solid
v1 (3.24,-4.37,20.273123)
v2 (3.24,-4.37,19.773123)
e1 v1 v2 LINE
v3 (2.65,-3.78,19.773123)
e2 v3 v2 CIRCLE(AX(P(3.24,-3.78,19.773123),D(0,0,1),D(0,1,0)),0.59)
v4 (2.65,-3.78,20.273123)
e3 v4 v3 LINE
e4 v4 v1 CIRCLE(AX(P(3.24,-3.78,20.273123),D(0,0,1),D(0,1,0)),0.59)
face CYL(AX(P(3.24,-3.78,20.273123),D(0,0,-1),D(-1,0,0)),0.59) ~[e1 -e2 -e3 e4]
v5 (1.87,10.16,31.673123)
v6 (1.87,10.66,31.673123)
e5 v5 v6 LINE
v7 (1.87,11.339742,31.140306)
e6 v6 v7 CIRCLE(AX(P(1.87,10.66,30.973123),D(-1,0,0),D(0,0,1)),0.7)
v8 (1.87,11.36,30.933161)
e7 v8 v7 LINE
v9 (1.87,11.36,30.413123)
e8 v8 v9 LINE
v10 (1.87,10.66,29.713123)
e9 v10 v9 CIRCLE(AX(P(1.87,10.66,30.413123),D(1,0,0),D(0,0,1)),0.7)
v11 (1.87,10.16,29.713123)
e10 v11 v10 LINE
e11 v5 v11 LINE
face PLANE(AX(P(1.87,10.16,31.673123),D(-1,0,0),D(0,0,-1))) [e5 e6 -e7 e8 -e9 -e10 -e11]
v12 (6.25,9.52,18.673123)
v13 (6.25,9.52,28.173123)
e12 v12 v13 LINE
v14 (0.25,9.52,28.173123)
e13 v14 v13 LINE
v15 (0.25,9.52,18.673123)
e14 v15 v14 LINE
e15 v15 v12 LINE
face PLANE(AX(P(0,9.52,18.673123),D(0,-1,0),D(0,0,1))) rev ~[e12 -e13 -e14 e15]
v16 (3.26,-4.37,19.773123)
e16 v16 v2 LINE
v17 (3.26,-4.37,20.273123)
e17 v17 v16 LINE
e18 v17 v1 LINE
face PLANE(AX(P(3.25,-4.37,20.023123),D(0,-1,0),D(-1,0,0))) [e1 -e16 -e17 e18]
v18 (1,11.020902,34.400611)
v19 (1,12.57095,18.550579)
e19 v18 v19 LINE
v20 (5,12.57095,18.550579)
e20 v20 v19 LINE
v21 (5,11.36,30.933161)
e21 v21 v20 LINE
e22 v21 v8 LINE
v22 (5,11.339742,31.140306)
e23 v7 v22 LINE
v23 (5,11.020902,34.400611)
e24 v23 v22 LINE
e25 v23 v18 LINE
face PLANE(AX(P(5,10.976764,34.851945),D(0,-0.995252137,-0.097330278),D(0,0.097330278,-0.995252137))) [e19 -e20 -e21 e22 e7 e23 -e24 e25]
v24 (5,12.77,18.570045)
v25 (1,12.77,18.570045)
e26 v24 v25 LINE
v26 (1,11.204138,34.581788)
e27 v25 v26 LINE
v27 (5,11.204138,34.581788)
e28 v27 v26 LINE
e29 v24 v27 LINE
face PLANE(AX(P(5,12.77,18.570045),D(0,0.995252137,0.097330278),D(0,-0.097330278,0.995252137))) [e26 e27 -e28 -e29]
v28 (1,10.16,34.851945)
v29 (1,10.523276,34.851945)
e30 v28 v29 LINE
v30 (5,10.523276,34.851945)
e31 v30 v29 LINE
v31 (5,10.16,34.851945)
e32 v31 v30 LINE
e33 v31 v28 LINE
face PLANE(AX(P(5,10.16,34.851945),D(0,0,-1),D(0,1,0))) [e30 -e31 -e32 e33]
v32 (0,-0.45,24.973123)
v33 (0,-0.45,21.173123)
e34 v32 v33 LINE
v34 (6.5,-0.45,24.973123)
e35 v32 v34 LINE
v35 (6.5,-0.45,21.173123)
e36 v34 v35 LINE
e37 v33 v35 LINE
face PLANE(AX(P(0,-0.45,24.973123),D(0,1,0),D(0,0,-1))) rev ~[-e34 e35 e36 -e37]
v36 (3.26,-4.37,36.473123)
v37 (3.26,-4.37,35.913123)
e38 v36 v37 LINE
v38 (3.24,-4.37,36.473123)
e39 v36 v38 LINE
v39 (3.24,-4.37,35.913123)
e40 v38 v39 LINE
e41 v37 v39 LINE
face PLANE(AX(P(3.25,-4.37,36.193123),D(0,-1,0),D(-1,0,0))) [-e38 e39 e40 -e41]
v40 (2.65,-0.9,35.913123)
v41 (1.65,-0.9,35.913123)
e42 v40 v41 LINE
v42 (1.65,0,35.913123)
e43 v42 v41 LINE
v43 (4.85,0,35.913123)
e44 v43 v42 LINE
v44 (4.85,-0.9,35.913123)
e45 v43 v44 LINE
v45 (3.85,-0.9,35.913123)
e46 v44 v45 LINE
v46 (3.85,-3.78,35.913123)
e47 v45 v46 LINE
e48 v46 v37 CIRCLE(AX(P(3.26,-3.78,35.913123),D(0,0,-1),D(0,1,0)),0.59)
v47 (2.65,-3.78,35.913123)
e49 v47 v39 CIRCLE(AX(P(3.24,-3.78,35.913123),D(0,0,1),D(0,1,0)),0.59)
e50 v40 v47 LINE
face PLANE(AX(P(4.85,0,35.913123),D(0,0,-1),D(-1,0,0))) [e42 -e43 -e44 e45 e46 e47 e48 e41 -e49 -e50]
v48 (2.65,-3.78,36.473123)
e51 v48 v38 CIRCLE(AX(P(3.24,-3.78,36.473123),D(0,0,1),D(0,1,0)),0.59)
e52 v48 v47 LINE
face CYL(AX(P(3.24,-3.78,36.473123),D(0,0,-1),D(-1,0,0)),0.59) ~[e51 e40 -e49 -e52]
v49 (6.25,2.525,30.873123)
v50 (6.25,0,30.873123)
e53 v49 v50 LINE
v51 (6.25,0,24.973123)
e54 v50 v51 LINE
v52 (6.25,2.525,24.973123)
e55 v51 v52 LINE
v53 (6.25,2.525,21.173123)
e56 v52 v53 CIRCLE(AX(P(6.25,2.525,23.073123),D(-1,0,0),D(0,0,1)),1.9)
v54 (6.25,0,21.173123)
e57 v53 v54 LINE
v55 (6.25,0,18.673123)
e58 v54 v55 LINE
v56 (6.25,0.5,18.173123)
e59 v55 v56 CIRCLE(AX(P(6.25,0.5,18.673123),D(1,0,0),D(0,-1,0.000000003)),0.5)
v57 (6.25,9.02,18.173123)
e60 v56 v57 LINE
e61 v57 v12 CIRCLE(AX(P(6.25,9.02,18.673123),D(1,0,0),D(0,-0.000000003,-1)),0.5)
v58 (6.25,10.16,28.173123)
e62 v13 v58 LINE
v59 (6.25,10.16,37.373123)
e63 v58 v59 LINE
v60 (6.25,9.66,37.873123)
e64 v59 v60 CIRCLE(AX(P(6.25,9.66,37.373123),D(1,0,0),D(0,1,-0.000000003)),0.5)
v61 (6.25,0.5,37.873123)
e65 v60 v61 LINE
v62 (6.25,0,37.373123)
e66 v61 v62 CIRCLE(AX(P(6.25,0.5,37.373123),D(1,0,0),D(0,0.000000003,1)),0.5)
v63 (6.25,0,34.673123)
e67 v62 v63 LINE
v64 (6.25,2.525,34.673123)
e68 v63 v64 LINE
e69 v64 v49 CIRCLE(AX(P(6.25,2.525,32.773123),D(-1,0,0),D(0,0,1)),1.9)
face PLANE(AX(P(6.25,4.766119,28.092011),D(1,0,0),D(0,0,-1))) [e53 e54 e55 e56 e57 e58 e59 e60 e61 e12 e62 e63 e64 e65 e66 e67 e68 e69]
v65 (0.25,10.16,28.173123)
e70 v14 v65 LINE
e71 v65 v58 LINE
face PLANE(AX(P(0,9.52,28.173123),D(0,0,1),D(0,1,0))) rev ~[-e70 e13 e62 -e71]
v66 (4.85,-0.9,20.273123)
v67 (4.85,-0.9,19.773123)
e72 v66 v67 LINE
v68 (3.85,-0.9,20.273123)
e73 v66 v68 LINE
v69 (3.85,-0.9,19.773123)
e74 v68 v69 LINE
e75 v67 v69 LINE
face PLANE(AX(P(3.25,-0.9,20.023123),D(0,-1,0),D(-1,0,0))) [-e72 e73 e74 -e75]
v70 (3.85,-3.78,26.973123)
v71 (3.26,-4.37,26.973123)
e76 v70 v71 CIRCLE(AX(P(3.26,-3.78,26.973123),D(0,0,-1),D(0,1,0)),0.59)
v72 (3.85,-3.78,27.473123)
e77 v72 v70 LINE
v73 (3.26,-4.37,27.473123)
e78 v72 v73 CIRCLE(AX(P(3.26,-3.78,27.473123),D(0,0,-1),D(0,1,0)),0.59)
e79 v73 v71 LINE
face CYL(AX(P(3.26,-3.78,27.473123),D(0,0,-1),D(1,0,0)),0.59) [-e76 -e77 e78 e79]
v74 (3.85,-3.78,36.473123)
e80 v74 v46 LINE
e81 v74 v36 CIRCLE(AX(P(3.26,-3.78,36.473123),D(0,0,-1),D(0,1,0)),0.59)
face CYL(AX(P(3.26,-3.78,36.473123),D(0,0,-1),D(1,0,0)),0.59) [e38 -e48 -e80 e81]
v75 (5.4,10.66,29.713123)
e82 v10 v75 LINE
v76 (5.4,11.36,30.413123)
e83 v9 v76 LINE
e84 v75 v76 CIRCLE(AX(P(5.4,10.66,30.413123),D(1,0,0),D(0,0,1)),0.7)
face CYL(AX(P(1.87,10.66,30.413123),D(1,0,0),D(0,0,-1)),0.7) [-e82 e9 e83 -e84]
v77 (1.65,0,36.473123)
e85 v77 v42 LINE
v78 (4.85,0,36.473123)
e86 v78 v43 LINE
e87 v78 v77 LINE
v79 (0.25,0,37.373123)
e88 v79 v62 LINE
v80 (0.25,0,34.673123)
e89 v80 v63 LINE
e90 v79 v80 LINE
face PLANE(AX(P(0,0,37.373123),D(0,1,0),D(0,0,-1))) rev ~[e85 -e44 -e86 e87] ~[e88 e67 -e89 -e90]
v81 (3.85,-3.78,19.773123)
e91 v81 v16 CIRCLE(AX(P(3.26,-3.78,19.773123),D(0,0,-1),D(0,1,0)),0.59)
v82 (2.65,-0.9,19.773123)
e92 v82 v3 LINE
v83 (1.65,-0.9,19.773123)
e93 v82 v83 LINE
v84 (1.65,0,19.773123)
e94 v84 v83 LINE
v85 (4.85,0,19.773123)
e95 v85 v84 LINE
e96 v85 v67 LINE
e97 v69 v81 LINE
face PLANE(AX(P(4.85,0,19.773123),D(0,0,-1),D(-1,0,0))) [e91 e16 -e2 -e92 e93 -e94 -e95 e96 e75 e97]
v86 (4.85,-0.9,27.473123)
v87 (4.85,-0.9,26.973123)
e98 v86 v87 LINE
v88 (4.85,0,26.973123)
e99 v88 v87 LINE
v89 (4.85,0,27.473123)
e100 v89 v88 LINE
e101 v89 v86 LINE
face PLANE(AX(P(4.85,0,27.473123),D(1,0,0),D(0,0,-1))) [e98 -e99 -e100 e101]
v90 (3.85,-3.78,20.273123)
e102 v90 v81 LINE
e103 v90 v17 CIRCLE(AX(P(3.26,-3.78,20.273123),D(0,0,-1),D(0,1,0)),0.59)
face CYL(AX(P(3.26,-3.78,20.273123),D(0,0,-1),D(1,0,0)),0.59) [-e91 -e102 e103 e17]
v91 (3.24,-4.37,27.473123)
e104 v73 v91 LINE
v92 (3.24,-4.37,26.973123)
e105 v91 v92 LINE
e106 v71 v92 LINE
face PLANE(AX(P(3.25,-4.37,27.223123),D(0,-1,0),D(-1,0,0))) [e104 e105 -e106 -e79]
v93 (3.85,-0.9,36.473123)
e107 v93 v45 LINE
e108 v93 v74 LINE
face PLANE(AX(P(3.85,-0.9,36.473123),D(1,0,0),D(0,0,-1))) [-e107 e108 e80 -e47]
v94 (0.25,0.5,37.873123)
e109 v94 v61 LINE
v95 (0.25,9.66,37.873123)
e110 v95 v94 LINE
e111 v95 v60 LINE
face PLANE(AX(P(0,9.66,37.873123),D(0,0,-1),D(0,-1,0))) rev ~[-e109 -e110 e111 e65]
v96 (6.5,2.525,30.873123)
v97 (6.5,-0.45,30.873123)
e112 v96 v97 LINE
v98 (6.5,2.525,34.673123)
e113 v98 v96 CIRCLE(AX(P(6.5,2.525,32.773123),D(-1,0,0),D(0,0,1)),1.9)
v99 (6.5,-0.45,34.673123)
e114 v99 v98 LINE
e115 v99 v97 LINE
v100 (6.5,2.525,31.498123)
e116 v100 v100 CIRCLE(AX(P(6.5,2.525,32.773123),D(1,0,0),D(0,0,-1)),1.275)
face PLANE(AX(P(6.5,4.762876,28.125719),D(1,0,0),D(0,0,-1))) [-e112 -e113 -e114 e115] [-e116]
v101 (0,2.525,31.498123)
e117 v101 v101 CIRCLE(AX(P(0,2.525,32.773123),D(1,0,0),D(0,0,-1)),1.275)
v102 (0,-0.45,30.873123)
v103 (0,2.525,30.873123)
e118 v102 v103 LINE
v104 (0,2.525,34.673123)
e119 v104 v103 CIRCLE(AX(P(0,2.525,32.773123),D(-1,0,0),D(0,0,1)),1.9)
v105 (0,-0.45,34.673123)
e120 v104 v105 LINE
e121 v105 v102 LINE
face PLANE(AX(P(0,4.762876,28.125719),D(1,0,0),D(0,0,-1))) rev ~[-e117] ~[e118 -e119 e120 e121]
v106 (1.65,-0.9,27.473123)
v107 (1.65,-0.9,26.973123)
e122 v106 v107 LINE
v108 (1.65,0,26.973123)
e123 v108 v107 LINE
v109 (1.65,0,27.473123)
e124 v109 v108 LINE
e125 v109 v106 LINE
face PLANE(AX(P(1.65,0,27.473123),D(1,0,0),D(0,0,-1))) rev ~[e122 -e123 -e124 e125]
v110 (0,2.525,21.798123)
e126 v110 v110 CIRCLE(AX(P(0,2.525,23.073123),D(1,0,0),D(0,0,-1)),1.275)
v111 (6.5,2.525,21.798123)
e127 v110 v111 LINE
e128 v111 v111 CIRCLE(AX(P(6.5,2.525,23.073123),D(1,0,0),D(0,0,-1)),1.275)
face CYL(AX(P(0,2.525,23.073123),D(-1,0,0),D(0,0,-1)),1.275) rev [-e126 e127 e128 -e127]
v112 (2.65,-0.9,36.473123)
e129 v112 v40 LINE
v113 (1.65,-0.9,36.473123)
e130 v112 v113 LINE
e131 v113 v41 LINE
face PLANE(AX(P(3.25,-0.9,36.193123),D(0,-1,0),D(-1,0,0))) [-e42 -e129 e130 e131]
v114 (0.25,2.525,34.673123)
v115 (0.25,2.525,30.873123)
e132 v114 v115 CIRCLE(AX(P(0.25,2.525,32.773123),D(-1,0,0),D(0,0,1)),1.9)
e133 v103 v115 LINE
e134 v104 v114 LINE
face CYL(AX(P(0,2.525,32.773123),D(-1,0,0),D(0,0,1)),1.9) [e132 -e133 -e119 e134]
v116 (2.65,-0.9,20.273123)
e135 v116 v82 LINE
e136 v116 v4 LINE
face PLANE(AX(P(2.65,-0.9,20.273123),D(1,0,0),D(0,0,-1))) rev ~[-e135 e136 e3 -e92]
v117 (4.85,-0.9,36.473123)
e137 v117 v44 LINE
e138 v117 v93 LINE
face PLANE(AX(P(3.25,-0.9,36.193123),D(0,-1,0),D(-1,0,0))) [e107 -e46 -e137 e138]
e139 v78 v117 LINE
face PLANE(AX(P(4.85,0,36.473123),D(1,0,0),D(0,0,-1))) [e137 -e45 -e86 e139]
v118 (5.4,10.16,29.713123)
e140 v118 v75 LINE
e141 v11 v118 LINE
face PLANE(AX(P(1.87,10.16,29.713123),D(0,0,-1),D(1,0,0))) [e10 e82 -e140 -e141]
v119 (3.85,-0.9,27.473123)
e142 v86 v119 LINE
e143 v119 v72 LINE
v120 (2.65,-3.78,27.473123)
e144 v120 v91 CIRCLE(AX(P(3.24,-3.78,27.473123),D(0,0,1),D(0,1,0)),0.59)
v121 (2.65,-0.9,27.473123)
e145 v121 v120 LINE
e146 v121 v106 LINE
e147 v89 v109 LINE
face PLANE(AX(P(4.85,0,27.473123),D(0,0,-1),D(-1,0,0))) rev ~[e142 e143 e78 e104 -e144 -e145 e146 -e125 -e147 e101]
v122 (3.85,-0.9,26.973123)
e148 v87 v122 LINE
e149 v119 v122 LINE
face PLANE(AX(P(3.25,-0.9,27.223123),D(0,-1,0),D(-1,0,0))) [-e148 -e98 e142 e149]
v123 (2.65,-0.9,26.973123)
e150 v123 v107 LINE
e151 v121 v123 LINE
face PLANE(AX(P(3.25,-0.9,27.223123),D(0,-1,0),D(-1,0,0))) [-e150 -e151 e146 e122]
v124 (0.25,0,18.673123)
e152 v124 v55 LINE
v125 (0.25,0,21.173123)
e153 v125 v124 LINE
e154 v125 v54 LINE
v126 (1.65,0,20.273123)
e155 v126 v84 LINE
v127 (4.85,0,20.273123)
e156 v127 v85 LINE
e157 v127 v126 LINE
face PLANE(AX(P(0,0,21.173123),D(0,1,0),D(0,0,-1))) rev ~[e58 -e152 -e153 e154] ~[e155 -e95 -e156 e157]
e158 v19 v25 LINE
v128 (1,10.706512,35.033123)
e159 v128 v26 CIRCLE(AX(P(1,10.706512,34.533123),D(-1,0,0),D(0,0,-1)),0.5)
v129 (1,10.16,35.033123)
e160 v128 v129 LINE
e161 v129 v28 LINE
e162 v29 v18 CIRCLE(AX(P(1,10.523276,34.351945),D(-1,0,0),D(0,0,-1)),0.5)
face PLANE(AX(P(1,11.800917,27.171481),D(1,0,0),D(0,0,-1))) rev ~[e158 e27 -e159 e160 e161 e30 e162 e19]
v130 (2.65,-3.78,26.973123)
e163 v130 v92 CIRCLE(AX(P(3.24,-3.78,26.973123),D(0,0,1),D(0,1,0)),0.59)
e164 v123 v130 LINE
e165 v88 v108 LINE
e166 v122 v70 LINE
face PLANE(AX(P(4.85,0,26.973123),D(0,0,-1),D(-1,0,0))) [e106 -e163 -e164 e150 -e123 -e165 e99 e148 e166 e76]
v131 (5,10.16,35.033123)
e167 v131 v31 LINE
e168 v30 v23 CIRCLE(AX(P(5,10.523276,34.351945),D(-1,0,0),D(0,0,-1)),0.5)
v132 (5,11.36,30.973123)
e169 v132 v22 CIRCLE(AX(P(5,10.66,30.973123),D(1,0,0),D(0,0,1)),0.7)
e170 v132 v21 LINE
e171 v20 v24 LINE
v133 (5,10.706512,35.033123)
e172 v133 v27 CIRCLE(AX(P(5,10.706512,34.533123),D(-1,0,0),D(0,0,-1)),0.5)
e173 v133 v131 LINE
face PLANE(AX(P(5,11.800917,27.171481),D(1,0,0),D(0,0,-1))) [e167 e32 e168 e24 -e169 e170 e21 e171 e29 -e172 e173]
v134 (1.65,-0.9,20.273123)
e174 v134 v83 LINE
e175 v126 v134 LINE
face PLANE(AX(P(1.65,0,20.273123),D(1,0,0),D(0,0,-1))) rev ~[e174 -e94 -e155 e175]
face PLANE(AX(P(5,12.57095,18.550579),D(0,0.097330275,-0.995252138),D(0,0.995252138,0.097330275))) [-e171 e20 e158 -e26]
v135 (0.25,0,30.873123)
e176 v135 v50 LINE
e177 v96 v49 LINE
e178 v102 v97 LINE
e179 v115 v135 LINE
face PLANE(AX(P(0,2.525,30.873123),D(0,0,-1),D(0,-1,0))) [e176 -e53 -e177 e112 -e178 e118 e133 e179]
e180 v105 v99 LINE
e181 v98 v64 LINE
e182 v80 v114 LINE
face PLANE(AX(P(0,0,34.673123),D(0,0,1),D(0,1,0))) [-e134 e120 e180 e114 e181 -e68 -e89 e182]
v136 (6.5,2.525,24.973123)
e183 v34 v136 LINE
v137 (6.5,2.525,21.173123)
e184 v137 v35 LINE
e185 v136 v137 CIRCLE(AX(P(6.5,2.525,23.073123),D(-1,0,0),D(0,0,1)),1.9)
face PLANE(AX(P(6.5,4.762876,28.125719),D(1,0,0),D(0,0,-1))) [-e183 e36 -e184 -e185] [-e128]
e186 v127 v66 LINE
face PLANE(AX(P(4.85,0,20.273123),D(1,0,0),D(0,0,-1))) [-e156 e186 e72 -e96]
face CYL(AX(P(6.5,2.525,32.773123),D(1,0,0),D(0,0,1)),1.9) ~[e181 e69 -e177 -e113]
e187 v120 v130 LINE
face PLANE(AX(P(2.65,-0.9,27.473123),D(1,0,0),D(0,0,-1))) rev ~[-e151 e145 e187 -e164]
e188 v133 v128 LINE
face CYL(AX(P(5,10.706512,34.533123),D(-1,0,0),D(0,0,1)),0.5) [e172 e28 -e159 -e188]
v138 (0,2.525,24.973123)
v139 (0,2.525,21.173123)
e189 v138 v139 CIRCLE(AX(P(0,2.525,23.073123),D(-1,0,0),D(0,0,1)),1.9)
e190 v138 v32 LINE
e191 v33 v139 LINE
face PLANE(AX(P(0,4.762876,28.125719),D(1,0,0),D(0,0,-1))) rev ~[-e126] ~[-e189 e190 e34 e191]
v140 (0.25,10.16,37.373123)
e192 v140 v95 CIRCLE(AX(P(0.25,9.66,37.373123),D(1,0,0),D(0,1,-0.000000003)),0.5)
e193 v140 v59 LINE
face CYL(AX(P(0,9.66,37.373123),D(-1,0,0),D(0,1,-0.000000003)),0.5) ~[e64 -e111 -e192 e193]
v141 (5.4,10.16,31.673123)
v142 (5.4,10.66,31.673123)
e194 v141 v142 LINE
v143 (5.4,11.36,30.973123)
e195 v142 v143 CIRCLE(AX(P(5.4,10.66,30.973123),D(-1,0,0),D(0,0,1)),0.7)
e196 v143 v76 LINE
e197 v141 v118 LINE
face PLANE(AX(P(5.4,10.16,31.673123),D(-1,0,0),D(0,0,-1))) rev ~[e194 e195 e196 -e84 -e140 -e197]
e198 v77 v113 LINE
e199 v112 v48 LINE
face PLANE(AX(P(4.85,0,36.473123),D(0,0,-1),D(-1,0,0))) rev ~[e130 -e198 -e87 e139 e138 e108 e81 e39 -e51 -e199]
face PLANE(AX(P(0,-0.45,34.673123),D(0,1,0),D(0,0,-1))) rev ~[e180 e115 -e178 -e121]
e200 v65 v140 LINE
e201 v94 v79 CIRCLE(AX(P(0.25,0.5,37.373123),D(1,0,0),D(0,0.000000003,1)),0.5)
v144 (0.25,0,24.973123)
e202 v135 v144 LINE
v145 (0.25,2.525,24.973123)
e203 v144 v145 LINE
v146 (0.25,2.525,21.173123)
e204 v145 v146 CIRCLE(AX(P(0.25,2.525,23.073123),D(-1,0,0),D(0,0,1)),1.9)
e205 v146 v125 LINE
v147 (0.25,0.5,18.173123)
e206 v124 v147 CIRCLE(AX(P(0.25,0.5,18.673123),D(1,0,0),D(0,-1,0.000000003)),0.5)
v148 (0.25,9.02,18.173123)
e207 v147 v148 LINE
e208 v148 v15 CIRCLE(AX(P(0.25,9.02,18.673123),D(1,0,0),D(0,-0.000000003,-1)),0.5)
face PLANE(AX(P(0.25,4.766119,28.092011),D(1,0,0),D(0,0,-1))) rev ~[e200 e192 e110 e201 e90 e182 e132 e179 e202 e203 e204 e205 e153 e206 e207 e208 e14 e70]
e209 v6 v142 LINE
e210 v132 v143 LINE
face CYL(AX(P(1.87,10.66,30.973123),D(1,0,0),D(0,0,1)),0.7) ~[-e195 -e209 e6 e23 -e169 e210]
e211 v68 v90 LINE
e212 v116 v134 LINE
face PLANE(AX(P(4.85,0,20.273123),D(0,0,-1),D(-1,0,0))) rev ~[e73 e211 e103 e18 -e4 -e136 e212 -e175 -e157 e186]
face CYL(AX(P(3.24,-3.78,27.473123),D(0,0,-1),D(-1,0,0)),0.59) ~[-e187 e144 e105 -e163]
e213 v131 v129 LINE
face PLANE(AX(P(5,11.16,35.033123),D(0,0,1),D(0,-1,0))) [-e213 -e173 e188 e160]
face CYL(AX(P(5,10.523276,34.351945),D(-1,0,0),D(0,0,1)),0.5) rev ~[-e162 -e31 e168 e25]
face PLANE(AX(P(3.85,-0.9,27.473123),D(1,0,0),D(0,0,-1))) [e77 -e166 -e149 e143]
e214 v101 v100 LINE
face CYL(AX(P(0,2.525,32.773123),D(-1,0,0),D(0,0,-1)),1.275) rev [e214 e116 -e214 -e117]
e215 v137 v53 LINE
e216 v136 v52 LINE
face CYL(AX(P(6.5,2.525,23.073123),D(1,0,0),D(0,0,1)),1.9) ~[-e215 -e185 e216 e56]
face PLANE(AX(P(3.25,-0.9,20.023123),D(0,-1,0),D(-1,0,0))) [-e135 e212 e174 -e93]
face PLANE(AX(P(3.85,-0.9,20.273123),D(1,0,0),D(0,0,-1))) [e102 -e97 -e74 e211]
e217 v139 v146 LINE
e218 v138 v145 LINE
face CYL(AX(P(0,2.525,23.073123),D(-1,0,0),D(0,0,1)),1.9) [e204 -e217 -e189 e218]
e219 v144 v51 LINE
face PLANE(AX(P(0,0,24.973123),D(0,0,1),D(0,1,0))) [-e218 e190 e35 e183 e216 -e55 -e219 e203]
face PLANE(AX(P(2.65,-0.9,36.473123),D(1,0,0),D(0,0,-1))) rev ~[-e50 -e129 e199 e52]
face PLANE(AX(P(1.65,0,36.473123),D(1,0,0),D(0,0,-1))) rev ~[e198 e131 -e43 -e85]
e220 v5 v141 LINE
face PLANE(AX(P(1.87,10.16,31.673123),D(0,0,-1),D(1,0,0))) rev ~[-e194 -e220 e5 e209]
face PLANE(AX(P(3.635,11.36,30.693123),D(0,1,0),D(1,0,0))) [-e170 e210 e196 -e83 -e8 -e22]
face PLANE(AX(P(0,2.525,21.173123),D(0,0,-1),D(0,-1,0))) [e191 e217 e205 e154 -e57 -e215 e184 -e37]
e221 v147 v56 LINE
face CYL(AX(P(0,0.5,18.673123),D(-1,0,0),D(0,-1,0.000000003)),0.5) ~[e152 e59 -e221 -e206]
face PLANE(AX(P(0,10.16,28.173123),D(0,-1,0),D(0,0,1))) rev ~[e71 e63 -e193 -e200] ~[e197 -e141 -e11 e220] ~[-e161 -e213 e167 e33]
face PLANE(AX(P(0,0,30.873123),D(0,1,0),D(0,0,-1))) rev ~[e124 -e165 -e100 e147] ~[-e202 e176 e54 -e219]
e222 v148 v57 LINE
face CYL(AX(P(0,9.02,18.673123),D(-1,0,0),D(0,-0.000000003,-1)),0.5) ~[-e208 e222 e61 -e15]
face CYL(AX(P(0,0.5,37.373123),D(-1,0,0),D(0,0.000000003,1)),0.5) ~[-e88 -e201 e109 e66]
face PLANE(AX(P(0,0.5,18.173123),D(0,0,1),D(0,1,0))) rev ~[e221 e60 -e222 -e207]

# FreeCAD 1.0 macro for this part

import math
import FreeCAD as App
import Part
import Sketcher

V = App.Vector
Q = App.Units.Quantity


def edges_at(feature, points):
    """Names of the edges that pass closest to the given points."""
    edges = feature.Shape.Edges
    near = lambda p: min(range(len(edges)), key=lambda i: edges[i].distToShape(Part.Vertex(*p))[0])
    return sorted({f"Edge{near(p) + 1}" for p in points})


def add_polygon(sketch, points):
    """Adds a closed chain of lines whose ends are joined by coincident constraints."""
    first, n = sketch.GeometryCount, len(points)
    for a, b in zip(points, points[1:] + points[:1]):
        sketch.addGeometry(Part.LineSegment(App.Vector(*a, 0), App.Vector(*b, 0)), False)
    for i in range(n):
        sketch.addConstraint(Sketcher.Constraint("Coincident", first + i, 2, first + (i + 1) % n, 1))

doc = App.newDocument("Part")
body = doc.addObject("PartDesign::Body", "Body")

# Sketch on YZ plane
sketch1 = doc.addObject("Sketcher::SketchObject", "Sketch")
body.addObject(sketch1)
sketch1.AttachmentSupport = (doc.YZ_Plane, [""])
sketch1.MapMode = "FlatFace"
sketch1.addGeometry([
    Part.LineSegment(V(0, 37.37, 0), V(0, 34.67, 0)),  # 0
    Part.LineSegment(V(0, 34.67, 0), V(-0.45, 34.67, 0)),  # 1
    Part.LineSegment(V(-0.45, 34.67, 0), V(-0.45, 30.87, 0)),  # 2
    Part.LineSegment(V(-0.45, 30.87, 0), V(0, 30.87, 0)),  # 3
    Part.LineSegment(V(0, 30.87, 0), V(0, 24.97, 0)),  # 4
    Part.LineSegment(V(0, 24.97, 0), V(-0.45, 24.97, 0)),  # 5
    Part.LineSegment(V(-0.45, 24.97, 0), V(-0.45, 21.17, 0)),  # 6
    Part.LineSegment(V(-0.45, 21.17, 0), V(0, 21.17, 0)),  # 7
    Part.LineSegment(V(0, 21.17, 0), V(0, 18.67, 0)),  # 8
    Part.ArcOfCircle(Part.Circle(V(0.5, 18.67, 0), V(0, 0, 1), 0.5), math.radians(180), math.radians(270)),  # 9
    Part.LineSegment(V(0.5, 18.17, 0), V(9.02, 18.17, 0)),  # 10
    Part.ArcOfCircle(Part.Circle(V(9.02, 18.67, 0), V(0, 0, 1), 0.5), math.radians(-90), math.radians(0)),  # 11
    Part.LineSegment(V(9.52, 18.67, 0), V(9.52, 28.17, 0)),  # 12
    Part.LineSegment(V(9.52, 28.17, 0), V(10.16, 28.17, 0)),  # 13
    Part.LineSegment(V(10.16, 28.17, 0), V(10.16, 37.37, 0)),  # 14
    Part.ArcOfCircle(Part.Circle(V(9.66, 37.37, 0), V(0, 0, 1), 0.5), math.radians(0), math.radians(90)),  # 15
    Part.LineSegment(V(9.66, 37.87, 0), V(0.5, 37.87, 0)),  # 16
    Part.ArcOfCircle(Part.Circle(V(0.5, 37.37, 0), V(0, 0, 1), 0.5), math.radians(90), math.radians(180)),  # 17
    Part.Circle(V(2.52, 32.77, 0), V(0, 0, 1), 1.27),  # 18
    Part.Circle(V(2.52, 23.07, 0), V(0, 0, 1), 1.27),  # 19
], False)
sketch1.addConstraint([
    Sketcher.Constraint("Coincident", 0, 2, 1, 1),
    Sketcher.Constraint("Coincident", 1, 2, 2, 1),
    Sketcher.Constraint("Coincident", 2, 2, 3, 1),
    Sketcher.Constraint("Coincident", 3, 2, 4, 1),
    Sketcher.Constraint("Coincident", 4, 2, 5, 1),
    Sketcher.Constraint("Coincident", 5, 2, 6, 1),
    Sketcher.Constraint("Coincident", 6, 2, 7, 1),
    Sketcher.Constraint("Coincident", 7, 2, 8, 1),
    Sketcher.Constraint("Tangent", 8, 2, 9, 1),
    Sketcher.Constraint("Tangent", 9, 2, 10, 1),
    Sketcher.Constraint("Tangent", 10, 2, 11, 1),
    Sketcher.Constraint("Tangent", 11, 2, 12, 1),
    Sketcher.Constraint("Coincident", 12, 2, 13, 1),
    Sketcher.Constraint("Coincident", 13, 2, 14, 1),
    Sketcher.Constraint("Tangent", 14, 2, 15, 1),
    Sketcher.Constraint("Tangent", 15, 2, 16, 1),
    Sketcher.Constraint("Tangent", 16, 2, 17, 1),
    Sketcher.Constraint("Tangent", 17, 2, 0, 1),
    Sketcher.Constraint("Vertical", 0),
    Sketcher.Constraint("Horizontal", 1),
    Sketcher.Constraint("Vertical", 2),
    Sketcher.Constraint("Horizontal", 3),
    Sketcher.Constraint("Vertical", 4),
    Sketcher.Constraint("Horizontal", 5),
    Sketcher.Constraint("Vertical", 6),
    Sketcher.Constraint("Horizontal", 7),
    Sketcher.Constraint("Vertical", 8),
    Sketcher.Constraint("Horizontal", 10),
    Sketcher.Constraint("Vertical", 12),
    Sketcher.Constraint("Horizontal", 13),
    Sketcher.Constraint("Vertical", 14),
    Sketcher.Constraint("Horizontal", 16),
    Sketcher.Constraint("Equal", 9, 11),
    Sketcher.Constraint("Equal", 11, 15),
    Sketcher.Constraint("Equal", 15, 17),
    Sketcher.Constraint("Equal", 18, 19),
    Sketcher.Constraint("PointOnObject", 0, 2, -2),
    Sketcher.Constraint("PointOnObject", 3, 2, -2),
    Sketcher.Constraint("PointOnObject", 7, 2, -2),
    Sketcher.Constraint("Vertical", 18, 3, 19, 3),
    Sketcher.Constraint("Vertical", 2, 2, 5, 2),
    Sketcher.Constraint("Equal", 2, 6),
    Sketcher.Constraint("Radius", 9, Q("0.5 mm")),
    Sketcher.Constraint("Diameter", 18, Q("2.55 mm")),
    Sketcher.Constraint("DistanceY", 0, 2, 0, 1, Q("2.7 mm")),
    Sketcher.Constraint("DistanceY", 2, 2, 2, 1, Q("3.8 mm")),
    Sketcher.Constraint("DistanceY", 4, 2, 4, 1, Q("5.9 mm")),
    Sketcher.Constraint("DistanceY", 8, 2, 8, 1, Q("2.5 mm")),
    Sketcher.Constraint("DistanceY", 12, 1, 12, 2, Q("9.5 mm")),
    Sketcher.Constraint("DistanceX", 1, 2, 1, 1, Q("0.45 mm")),
    Sketcher.Constraint("DistanceX", 10, 1, 10, 2, Q("8.52 mm")),
    Sketcher.Constraint("DistanceX", 13, 1, 13, 2, Q("0.64 mm")),
    Sketcher.Constraint("DistanceY", 18, 3, 17, 3, Q("4.6 mm")),
    Sketcher.Constraint("DistanceY", 9, 3, 19, 3, Q("4.4 mm")),
    Sketcher.Constraint("DistanceX", -1, 1, 18, 3, Q("2.525 mm")),
    Sketcher.Constraint("DistanceY", -1, 1, 9, 3, Q("18.673123 mm")),
])
pad1 = doc.addObject("PartDesign::Pad", "Pad")
body.addObject(pad1)
pad1.Profile = sketch1
pad1.Length = 6.5

# Sketch on XZ plane
sketch2 = doc.addObject("Sketcher::SketchObject", "Sketch001")
body.addObject(sketch2)
sketch2.AttachmentSupport = (doc.XZ_Plane, [""])
sketch2.MapMode = "FlatFace"
sketch2.AttachmentOffset = App.Placement(V(0, 0, -10.16), App.Rotation())
add_polygon(sketch2, [(1.9, 29.7), (1.9, 31.7), (5.4, 31.7), (5.4, 29.7)])  # lines 0-3
sketch2.addConstraint([
    Sketcher.Constraint("Vertical", 0),
    Sketcher.Constraint("Horizontal", 1),
    Sketcher.Constraint("Vertical", 2),
    Sketcher.Constraint("Horizontal", 3),
    Sketcher.Constraint("DistanceX", 1, 1, 1, 2, Q("3.53 mm")),
    Sketcher.Constraint("DistanceY", 0, 1, 0, 2, Q("1.96 mm")),
    Sketcher.Constraint("DistanceX", -1, 1, 1, 2, Q("5.4 mm")),
    Sketcher.Constraint("DistanceY", -1, 1, 0, 2, Q("31.673123 mm")),
])
pad2 = doc.addObject("PartDesign::Pad", "Pad001")
body.addObject(pad2)
pad2.Profile = sketch2
pad2.Length = 1.2
pad2.Reversed = True
doc.recompute()

fillet = doc.addObject("PartDesign::Fillet", "Fillet")
body.addObject(fillet)
fillet.Base = (pad2, edges_at(pad2, [(3.635, 11.36, 31.673), (3.635, 11.36, 29.713)]))
fillet.Radius = 0.7

# Sketch on XZ plane
sketch3 = doc.addObject("Sketcher::SketchObject", "Sketch002")
body.addObject(sketch3)
sketch3.AttachmentSupport = (doc.XZ_Plane, [""])
sketch3.MapMode = "FlatFace"
add_polygon(sketch3, [(4.8, 35.9), (4.8, 36.5), (1.6, 36.5), (1.6, 35.9)])  # lines 0-3
add_polygon(sketch3, [(4.8, 27), (4.8, 27.5), (1.6, 27.5), (1.6, 27)])  # lines 4-7
add_polygon(sketch3, [(4.8, 19.8), (4.8, 20.3), (1.6, 20.3), (1.6, 19.8)])  # lines 8-11
sketch3.addConstraint([
    Sketcher.Constraint("Vertical", 0),
    Sketcher.Constraint("Horizontal", 1),
    Sketcher.Constraint("Vertical", 2),
    Sketcher.Constraint("Horizontal", 3),
    Sketcher.Constraint("Vertical", 4),
    Sketcher.Constraint("Horizontal", 5),
    Sketcher.Constraint("Vertical", 6),
    Sketcher.Constraint("Horizontal", 7),
    Sketcher.Constraint("Vertical", 8),
    Sketcher.Constraint("Horizontal", 9),
    Sketcher.Constraint("Vertical", 10),
    Sketcher.Constraint("Horizontal", 11),
    Sketcher.Constraint("Vertical", 3, 2, 4, 2),
    Sketcher.Constraint("Vertical", 2, 2, 5, 2),
    Sketcher.Constraint("Vertical", 7, 2, 8, 2),
    Sketcher.Constraint("Vertical", 6, 2, 9, 2),
    Sketcher.Constraint("Equal", 6, 8),
    Sketcher.Constraint("DistanceX", 1, 2, 1, 1, Q("3.2 mm")),
    Sketcher.Constraint("DistanceY", 4, 1, 4, 2, Q("0.5 mm")),
    Sketcher.Constraint("DistanceY", 4, 2, 0, 2, Q("9 mm")),
    Sketcher.Constraint("DistanceY", 0, 1, 0, 2, Q("0.56 mm")),
    Sketcher.Constraint("DistanceY", 8, 2, 7, 2, Q("6.7 mm")),
    Sketcher.Constraint("DistanceX", -1, 1, 0, 2, Q("4.85 mm")),
    Sketcher.Constraint("DistanceY", -1, 1, 0, 2, Q("36.473123 mm")),
])
pad3 = doc.addObject("PartDesign::Pad", "Pad002")
body.addObject(pad3)
pad3.Profile = sketch3
pad3.Length = 0.9

# Sketch on XZ plane
sketch4 = doc.addObject("Sketcher::SketchObject", "Sketch003")
body.addObject(sketch4)
sketch4.AttachmentSupport = (doc.XZ_Plane, [""])
sketch4.MapMode = "FlatFace"
sketch4.AttachmentOffset = App.Placement(V(0, 0, 0.9), App.Rotation())
add_polygon(sketch4, [(3.9, 35.9), (3.9, 36.5), (2.6, 36.5), (2.6, 35.9)])  # lines 0-3
add_polygon(sketch4, [(3.9, 27), (3.9, 27.5), (2.6, 27.5), (2.6, 27)])  # lines 4-7
add_polygon(sketch4, [(3.9, 19.8), (3.9, 20.3), (2.6, 20.3), (2.6, 19.8)])  # lines 8-11
sketch4.addConstraint([
    Sketcher.Constraint("Vertical", 0),
    Sketcher.Constraint("Horizontal", 1),
    Sketcher.Constraint("Vertical", 2),
    Sketcher.Constraint("Horizontal", 3),
    Sketcher.Constraint("Vertical", 4),
    Sketcher.Constraint("Horizontal", 5),
    Sketcher.Constraint("Vertical", 6),
    Sketcher.Constraint("Horizontal", 7),
    Sketcher.Constraint("Vertical", 8),
    Sketcher.Constraint("Horizontal", 9),
    Sketcher.Constraint("Vertical", 10),
    Sketcher.Constraint("Horizontal", 11),
    Sketcher.Constraint("Vertical", 3, 2, 4, 2),
    Sketcher.Constraint("Vertical", 2, 2, 5, 2),
    Sketcher.Constraint("Vertical", 7, 2, 8, 2),
    Sketcher.Constraint("Vertical", 6, 2, 9, 2),
    Sketcher.Constraint("Equal", 6, 8),
    Sketcher.Constraint("DistanceX", 1, 2, 1, 1, Q("1.2 mm")),
    Sketcher.Constraint("DistanceY", 4, 1, 4, 2, Q("0.5 mm")),
    Sketcher.Constraint("DistanceY", 4, 2, 0, 2, Q("9 mm")),
    Sketcher.Constraint("DistanceY", 0, 1, 0, 2, Q("0.56 mm")),
    Sketcher.Constraint("DistanceY", 8, 2, 7, 2, Q("6.7 mm")),
    Sketcher.Constraint("DistanceX", -1, 1, 0, 2, Q("3.85 mm")),
    Sketcher.Constraint("DistanceY", -1, 1, 0, 2, Q("36.473123 mm")),
])
pad4 = doc.addObject("PartDesign::Pad", "Pad003")
body.addObject(pad4)
pad4.Profile = sketch4
pad4.Length = 3.47
doc.recompute()

fillet2 = doc.addObject("PartDesign::Fillet", "Fillet001")
body.addObject(fillet2)
fillet2.Base = (pad4, edges_at(pad4, [
    (2.65, -4.37, 36.193),
    (3.85, -4.37, 36.193),
    (2.65, -4.37, 27.223),
    (3.85, -4.37, 27.223),
    (3.85, -4.37, 20.023),
    (2.65, -4.37, 20.023),
]))
fillet2.Radius = 0.59

# Sketch on YZ plane
sketch5 = doc.addObject("Sketcher::SketchObject", "Sketch004")
body.addObject(sketch5)
sketch5.AttachmentSupport = (doc.YZ_Plane, [""])
sketch5.MapMode = "FlatFace"
sketch5.AttachmentOffset = App.Placement(V(0, 0, 5), App.Rotation())
add_polygon(sketch5, [(10.16, 34.85), (10.98, 34.85), (12.57, 18.55), (12.77, 18.57), (11.16, 35.03), (10.16, 35.03)])  # lines 0-5
sketch5.addConstraint([
    Sketcher.Constraint("Horizontal", 0),
    Sketcher.Constraint("Horizontal", 4),
    Sketcher.Constraint("Vertical", 5),
    Sketcher.Constraint("Perpendicular", 1, 2),
    Sketcher.Constraint("Perpendicular", 2, 3),
    Sketcher.Constraint("DistanceX", 4, 2, 4, 1, Q("1 mm")),
    Sketcher.Constraint("Distance", 2, Q("0.2 mm")),
    Sketcher.Constraint("DistanceX", -1, 1, 2, 2, Q("12.77 mm")),
    Sketcher.Constraint("DistanceX", -1, 1, 3, 2, Q("11.16 mm")),
    Sketcher.Constraint("DistanceY", 2, 2, 0, 2, Q("16.281901 mm")),
    Sketcher.Constraint("DistanceX", 0, 1, 0, 2, Q("0.816764 mm")),
    Sketcher.Constraint("DistanceY", -1, 1, 1, 2, Q("18.550579 mm")),
])
pad5 = doc.addObject("PartDesign::Pad", "Pad004")
body.addObject(pad5)
pad5.Profile = sketch5
pad5.Length = 4
pad5.Reversed = True
doc.recompute()

fillet3 = doc.addObject("PartDesign::Fillet", "Fillet002")
body.addObject(fillet3)
fillet3.Base = (pad5, edges_at(pad5, [(3, 11.16, 35.033), (3, 10.977, 34.852)]))
fillet3.Radius = 0.5

# Sketch on YZ plane
sketch6 = doc.addObject("Sketcher::SketchObject", "Sketch005")
body.addObject(sketch6)
sketch6.AttachmentSupport = (doc.YZ_Plane, [""])
sketch6.MapMode = "FlatFace"
sketch6.AttachmentOffset = App.Placement(V(0, 0, 6.5), App.Rotation())
sketch6.addGeometry([
    Part.LineSegment(V(0, 34.67, 0), V(2.52, 34.67, 0)),  # 0
    Part.ArcOfCircle(Part.Circle(V(2.52, 32.77, 0), V(0, 0, 1), 1.9), math.radians(-90), math.radians(90)),  # 1
    Part.LineSegment(V(2.52, 30.87, 0), V(0, 30.87, 0)),  # 2
    Part.LineSegment(V(0, 30.87, 0), V(0, 24.97, 0)),  # 3
    Part.LineSegment(V(0, 24.97, 0), V(2.52, 24.97, 0)),  # 4
    Part.ArcOfCircle(Part.Circle(V(2.52, 23.07, 0), V(0, 0, 1), 1.9), math.radians(-90), math.radians(90)),  # 5
    Part.LineSegment(V(2.52, 21.17, 0), V(0, 21.17, 0)),  # 6
    Part.LineSegment(V(0, 21.17, 0), V(0, 18.67, 0)),  # 7
    Part.ArcOfCircle(Part.Circle(V(0.5, 18.67, 0), V(0, 0, 1), 0.5), math.radians(180), math.radians(270)),  # 8
    Part.LineSegment(V(0.5, 18.17, 0), V(9.02, 18.17, 0)),  # 9
    Part.ArcOfCircle(Part.Circle(V(9.02, 18.67, 0), V(0, 0, 1), 0.5), math.radians(-90), math.radians(0)),  # 10
    Part.LineSegment(V(9.52, 18.67, 0), V(9.52, 28.17, 0)),  # 11
    Part.LineSegment(V(9.52, 28.17, 0), V(10.16, 28.17, 0)),  # 12
    Part.LineSegment(V(10.16, 28.17, 0), V(10.16, 37.37, 0)),  # 13
    Part.ArcOfCircle(Part.Circle(V(9.66, 37.37, 0), V(0, 0, 1), 0.5), math.radians(0), math.radians(90)),  # 14
    Part.LineSegment(V(9.66, 37.87, 0), V(0.5, 37.87, 0)),  # 15
    Part.ArcOfCircle(Part.Circle(V(0.5, 37.37, 0), V(0, 0, 1), 0.5), math.radians(90), math.radians(180)),  # 16
    Part.LineSegment(V(0, 37.37, 0), V(0, 34.67, 0)),  # 17
], False)
sketch6.addConstraint([
    Sketcher.Constraint("Tangent", 0, 2, 1, 2),
    Sketcher.Constraint("Tangent", 1, 1, 2, 1),
    Sketcher.Constraint("Coincident", 2, 2, 3, 1),
    Sketcher.Constraint("Coincident", 3, 2, 4, 1),
    Sketcher.Constraint("Tangent", 4, 2, 5, 2),
    Sketcher.Constraint("Tangent", 5, 1, 6, 1),
    Sketcher.Constraint("Coincident", 6, 2, 7, 1),
    Sketcher.Constraint("Tangent", 7, 2, 8, 1),
    Sketcher.Constraint("Tangent", 8, 2, 9, 1),
    Sketcher.Constraint("Tangent", 9, 2, 10, 1),
    Sketcher.Constraint("Tangent", 10, 2, 11, 1),
    Sketcher.Constraint("Coincident", 11, 2, 12, 1),
    Sketcher.Constraint("Coincident", 12, 2, 13, 1),
    Sketcher.Constraint("Tangent", 13, 2, 14, 1),
    Sketcher.Constraint("Tangent", 14, 2, 15, 1),
    Sketcher.Constraint("Tangent", 15, 2, 16, 1),
    Sketcher.Constraint("Tangent", 16, 2, 17, 1),
    Sketcher.Constraint("Coincident", 17, 2, 0, 1),
    Sketcher.Constraint("Horizontal", 0),
    Sketcher.Constraint("Horizontal", 2),
    Sketcher.Constraint("Vertical", 3),
    Sketcher.Constraint("Horizontal", 4),
    Sketcher.Constraint("Horizontal", 6),
    Sketcher.Constraint("Vertical", 7),
    Sketcher.Constraint("Horizontal", 9),
    Sketcher.Constraint("Vertical", 11),
    Sketcher.Constraint("Horizontal", 12),
    Sketcher.Constraint("Vertical", 13),
    Sketcher.Constraint("Horizontal", 15),
    Sketcher.Constraint("Vertical", 17),
    Sketcher.Constraint("Equal", 1, 5),
    Sketcher.Constraint("Equal", 8, 10),
    Sketcher.Constraint("Equal", 10, 14),
    Sketcher.Constraint("Equal", 14, 16),
    Sketcher.Constraint("PointOnObject", 2, 2, -2),
    Sketcher.Constraint("PointOnObject", 6, 2, -2),
    Sketcher.Constraint("PointOnObject", 16, 2, -2),
    Sketcher.Constraint("Vertical", 1, 3, 5, 3),
    Sketcher.Constraint("Radius", 1, Q("1.9 mm")),
    Sketcher.Constraint("Radius", 8, Q("0.5 mm")),
    Sketcher.Constraint("DistanceY", 3, 2, 3, 1, Q("5.9 mm")),
    Sketcher.Constraint("DistanceY", 7, 2, 7, 1, Q("2.5 mm")),
    Sketcher.Constraint("DistanceY", 11, 1, 11, 2, Q("9.5 mm")),
    Sketcher.Constraint("DistanceY", 13, 1, 13, 2, Q("9.2 mm")),
    Sketcher.Constraint("DistanceX", 9, 1, 9, 2, Q("8.52 mm")),
    Sketcher.Constraint("DistanceX", 12, 1, 12, 2, Q("0.64 mm")),
    Sketcher.Constraint("DistanceX", 0, 1, 0, 2, Q("2.525 mm")),
    Sketcher.Constraint("DistanceY", -1, 1, 1, 3, Q("32.773123 mm")),
])
pocket1 = doc.addObject("PartDesign::Pocket", "Pocket")
body.addObject(pocket1)
pocket1.Profile = sketch6
pocket1.Length = 0.25

# Sketch on YZ plane
sketch7 = doc.addObject("Sketcher::SketchObject", "Sketch006")
body.addObject(sketch7)
sketch7.AttachmentSupport = (doc.YZ_Plane, [""])
sketch7.MapMode = "FlatFace"
sketch7.addGeometry([
    Part.LineSegment(V(0, 34.67, 0), V(2.52, 34.67, 0)),  # 0
    Part.ArcOfCircle(Part.Circle(V(2.52, 32.77, 0), V(0, 0, 1), 1.9), math.radians(-90), math.radians(90)),  # 1
    Part.LineSegment(V(2.52, 30.87, 0), V(0, 30.87, 0)),  # 2
    Part.LineSegment(V(0, 30.87, 0), V(0, 24.97, 0)),  # 3
    Part.LineSegment(V(0, 24.97, 0), V(2.52, 24.97, 0)),  # 4
    Part.ArcOfCircle(Part.Circle(V(2.52, 23.07, 0), V(0, 0, 1), 1.9), math.radians(-90), math.radians(90)),  # 5
    Part.LineSegment(V(2.52, 21.17, 0), V(0, 21.17, 0)),  # 6
    Part.LineSegment(V(0, 21.17, 0), V(0, 18.67, 0)),  # 7
    Part.ArcOfCircle(Part.Circle(V(0.5, 18.67, 0), V(0, 0, 1), 0.5), math.radians(180), math.radians(270)),  # 8
    Part.LineSegment(V(0.5, 18.17, 0), V(9.02, 18.17, 0)),  # 9
    Part.ArcOfCircle(Part.Circle(V(9.02, 18.67, 0), V(0, 0, 1), 0.5), math.radians(-90), math.radians(0)),  # 10
    Part.LineSegment(V(9.52, 18.67, 0), V(9.52, 28.17, 0)),  # 11
    Part.LineSegment(V(9.52, 28.17, 0), V(10.16, 28.17, 0)),  # 12
    Part.LineSegment(V(10.16, 28.17, 0), V(10.16, 37.37, 0)),  # 13
    Part.ArcOfCircle(Part.Circle(V(9.66, 37.37, 0), V(0, 0, 1), 0.5), math.radians(0), math.radians(90)),  # 14
    Part.LineSegment(V(9.66, 37.87, 0), V(0.5, 37.87, 0)),  # 15
    Part.ArcOfCircle(Part.Circle(V(0.5, 37.37, 0), V(0, 0, 1), 0.5), math.radians(90), math.radians(180)),  # 16
    Part.LineSegment(V(0, 37.37, 0), V(0, 34.67, 0)),  # 17
], False)
sketch7.addConstraint([
    Sketcher.Constraint("Tangent", 0, 2, 1, 2),
    Sketcher.Constraint("Tangent", 1, 1, 2, 1),
    Sketcher.Constraint("Coincident", 2, 2, 3, 1),
    Sketcher.Constraint("Coincident", 3, 2, 4, 1),
    Sketcher.Constraint("Tangent", 4, 2, 5, 2),
    Sketcher.Constraint("Tangent", 5, 1, 6, 1),
    Sketcher.Constraint("Coincident", 6, 2, 7, 1),
    Sketcher.Constraint("Tangent", 7, 2, 8, 1),
    Sketcher.Constraint("Tangent", 8, 2, 9, 1),
    Sketcher.Constraint("Tangent", 9, 2, 10, 1),
    Sketcher.Constraint("Tangent", 10, 2, 11, 1),
    Sketcher.Constraint("Coincident", 11, 2, 12, 1),
    Sketcher.Constraint("Coincident", 12, 2, 13, 1),
    Sketcher.Constraint("Tangent", 13, 2, 14, 1),
    Sketcher.Constraint("Tangent", 14, 2, 15, 1),
    Sketcher.Constraint("Tangent", 15, 2, 16, 1),
    Sketcher.Constraint("Tangent", 16, 2, 17, 1),
    Sketcher.Constraint("Coincident", 17, 2, 0, 1),
    Sketcher.Constraint("Horizontal", 0),
    Sketcher.Constraint("Horizontal", 2),
    Sketcher.Constraint("Vertical", 3),
    Sketcher.Constraint("Horizontal", 4),
    Sketcher.Constraint("Horizontal", 6),
    Sketcher.Constraint("Vertical", 7),
    Sketcher.Constraint("Horizontal", 9),
    Sketcher.Constraint("Vertical", 11),
    Sketcher.Constraint("Horizontal", 12),
    Sketcher.Constraint("Vertical", 13),
    Sketcher.Constraint("Horizontal", 15),
    Sketcher.Constraint("Vertical", 17),
    Sketcher.Constraint("Equal", 1, 5),
    Sketcher.Constraint("Equal", 8, 10),
    Sketcher.Constraint("Equal", 10, 14),
    Sketcher.Constraint("Equal", 14, 16),
    Sketcher.Constraint("PointOnObject", 2, 2, -2),
    Sketcher.Constraint("PointOnObject", 6, 2, -2),
    Sketcher.Constraint("PointOnObject", 16, 2, -2),
    Sketcher.Constraint("Vertical", 1, 3, 5, 3),
    Sketcher.Constraint("Radius", 1, Q("1.9 mm")),
    Sketcher.Constraint("Radius", 8, Q("0.5 mm")),
    Sketcher.Constraint("DistanceY", 3, 2, 3, 1, Q("5.9 mm")),
    Sketcher.Constraint("DistanceY", 7, 2, 7, 1, Q("2.5 mm")),
    Sketcher.Constraint("DistanceY", 11, 1, 11, 2, Q("9.5 mm")),
    Sketcher.Constraint("DistanceY", 13, 1, 13, 2, Q("9.2 mm")),
    Sketcher.Constraint("DistanceX", 9, 1, 9, 2, Q("8.52 mm")),
    Sketcher.Constraint("DistanceX", 12, 1, 12, 2, Q("0.64 mm")),
    Sketcher.Constraint("DistanceX", 0, 1, 0, 2, Q("2.525 mm")),
    Sketcher.Constraint("DistanceY", -1, 1, 1, 3, Q("32.773123 mm")),
])
pocket2 = doc.addObject("PartDesign::Pocket", "Pocket001")
body.addObject(pocket2)
pocket2.Profile = sketch7
pocket2.Length = 0.25
pocket2.Reversed = True

doc.recompute()
